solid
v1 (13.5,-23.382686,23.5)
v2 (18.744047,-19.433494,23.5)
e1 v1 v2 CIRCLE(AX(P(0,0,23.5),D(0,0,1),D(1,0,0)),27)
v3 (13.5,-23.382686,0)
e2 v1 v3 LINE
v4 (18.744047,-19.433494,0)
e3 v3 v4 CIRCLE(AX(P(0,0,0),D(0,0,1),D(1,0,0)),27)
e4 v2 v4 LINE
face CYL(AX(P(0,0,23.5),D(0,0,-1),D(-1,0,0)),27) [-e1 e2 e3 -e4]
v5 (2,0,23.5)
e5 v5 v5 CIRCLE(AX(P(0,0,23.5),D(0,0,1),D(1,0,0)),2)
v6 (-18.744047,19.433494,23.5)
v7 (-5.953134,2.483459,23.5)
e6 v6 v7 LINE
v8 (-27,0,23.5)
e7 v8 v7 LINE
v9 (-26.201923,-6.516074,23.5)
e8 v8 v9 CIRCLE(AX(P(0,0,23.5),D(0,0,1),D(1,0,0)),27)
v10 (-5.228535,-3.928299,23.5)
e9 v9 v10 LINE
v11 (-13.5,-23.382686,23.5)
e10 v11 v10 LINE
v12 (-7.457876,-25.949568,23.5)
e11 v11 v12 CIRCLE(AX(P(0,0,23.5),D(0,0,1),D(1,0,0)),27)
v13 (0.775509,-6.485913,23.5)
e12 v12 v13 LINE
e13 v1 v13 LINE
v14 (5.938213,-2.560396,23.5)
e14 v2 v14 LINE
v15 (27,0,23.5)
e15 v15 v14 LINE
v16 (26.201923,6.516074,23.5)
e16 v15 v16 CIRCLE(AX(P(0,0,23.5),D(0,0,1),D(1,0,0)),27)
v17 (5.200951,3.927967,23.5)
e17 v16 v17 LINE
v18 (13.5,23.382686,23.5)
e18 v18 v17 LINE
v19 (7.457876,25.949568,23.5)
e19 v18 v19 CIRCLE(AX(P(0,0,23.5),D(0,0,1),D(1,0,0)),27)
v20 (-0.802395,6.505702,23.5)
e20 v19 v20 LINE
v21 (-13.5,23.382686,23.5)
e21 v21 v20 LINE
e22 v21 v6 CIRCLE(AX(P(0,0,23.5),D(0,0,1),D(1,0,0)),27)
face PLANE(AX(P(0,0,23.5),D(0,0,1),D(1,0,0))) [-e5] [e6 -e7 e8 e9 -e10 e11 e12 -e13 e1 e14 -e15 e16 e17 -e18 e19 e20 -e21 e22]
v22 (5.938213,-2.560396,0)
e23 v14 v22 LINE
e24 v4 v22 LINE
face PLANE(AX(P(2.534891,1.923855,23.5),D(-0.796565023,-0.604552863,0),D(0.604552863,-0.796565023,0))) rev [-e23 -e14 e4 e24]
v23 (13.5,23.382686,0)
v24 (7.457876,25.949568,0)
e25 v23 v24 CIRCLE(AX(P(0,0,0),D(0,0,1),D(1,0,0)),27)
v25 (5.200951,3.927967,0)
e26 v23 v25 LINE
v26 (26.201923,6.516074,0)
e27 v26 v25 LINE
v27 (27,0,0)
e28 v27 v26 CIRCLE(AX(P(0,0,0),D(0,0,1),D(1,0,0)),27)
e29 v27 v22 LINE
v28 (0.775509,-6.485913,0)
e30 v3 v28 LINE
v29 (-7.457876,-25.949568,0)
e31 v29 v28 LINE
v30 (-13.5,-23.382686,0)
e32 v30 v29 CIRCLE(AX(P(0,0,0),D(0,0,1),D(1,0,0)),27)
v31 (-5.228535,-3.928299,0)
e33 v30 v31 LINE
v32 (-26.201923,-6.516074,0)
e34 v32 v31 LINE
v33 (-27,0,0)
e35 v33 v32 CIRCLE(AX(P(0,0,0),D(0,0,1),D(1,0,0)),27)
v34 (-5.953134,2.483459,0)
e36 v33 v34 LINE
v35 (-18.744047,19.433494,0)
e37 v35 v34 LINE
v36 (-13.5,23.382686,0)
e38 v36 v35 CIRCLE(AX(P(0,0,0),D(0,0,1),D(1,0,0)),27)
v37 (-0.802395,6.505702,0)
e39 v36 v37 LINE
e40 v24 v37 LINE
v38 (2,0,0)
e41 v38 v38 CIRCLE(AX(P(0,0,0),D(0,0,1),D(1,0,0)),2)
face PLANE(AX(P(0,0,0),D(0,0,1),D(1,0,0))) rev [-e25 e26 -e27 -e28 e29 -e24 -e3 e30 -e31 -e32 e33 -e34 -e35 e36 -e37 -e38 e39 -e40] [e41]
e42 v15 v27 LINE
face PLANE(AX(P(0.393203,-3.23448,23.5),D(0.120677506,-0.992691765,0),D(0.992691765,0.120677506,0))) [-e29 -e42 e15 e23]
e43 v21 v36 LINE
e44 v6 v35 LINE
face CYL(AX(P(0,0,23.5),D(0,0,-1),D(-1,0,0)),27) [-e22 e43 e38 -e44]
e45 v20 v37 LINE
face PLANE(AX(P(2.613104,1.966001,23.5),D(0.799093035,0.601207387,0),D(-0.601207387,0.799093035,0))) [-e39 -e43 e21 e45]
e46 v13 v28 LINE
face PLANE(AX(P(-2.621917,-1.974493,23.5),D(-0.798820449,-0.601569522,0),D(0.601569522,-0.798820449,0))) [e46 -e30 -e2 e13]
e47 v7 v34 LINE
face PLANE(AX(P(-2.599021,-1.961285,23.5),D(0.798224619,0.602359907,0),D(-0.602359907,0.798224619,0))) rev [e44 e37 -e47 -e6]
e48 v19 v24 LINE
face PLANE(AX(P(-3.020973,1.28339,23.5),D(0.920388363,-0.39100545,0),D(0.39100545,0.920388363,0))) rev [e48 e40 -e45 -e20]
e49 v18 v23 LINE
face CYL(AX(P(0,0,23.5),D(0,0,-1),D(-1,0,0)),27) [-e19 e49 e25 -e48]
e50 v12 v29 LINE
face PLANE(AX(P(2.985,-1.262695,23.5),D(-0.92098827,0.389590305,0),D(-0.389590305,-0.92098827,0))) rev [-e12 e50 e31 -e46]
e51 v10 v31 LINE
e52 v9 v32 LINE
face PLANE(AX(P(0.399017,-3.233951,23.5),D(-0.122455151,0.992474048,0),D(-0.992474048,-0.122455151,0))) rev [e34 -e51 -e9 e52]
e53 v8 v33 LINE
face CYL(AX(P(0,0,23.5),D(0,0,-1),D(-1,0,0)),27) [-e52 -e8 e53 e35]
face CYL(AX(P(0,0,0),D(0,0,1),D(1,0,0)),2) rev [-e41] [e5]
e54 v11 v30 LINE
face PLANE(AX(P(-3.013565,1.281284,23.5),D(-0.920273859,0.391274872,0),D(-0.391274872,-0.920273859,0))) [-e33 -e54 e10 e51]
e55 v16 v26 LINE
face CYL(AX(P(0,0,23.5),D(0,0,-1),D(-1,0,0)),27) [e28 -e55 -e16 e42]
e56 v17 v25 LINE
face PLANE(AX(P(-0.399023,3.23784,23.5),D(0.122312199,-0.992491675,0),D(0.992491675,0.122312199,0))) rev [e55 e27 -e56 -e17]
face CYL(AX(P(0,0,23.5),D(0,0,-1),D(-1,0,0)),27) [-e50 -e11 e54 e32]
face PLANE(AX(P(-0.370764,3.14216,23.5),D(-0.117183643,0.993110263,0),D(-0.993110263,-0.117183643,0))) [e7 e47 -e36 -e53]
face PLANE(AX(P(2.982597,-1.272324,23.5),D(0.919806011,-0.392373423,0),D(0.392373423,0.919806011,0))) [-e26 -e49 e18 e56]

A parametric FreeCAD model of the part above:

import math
import FreeCAD as App
import Part
import Sketcher

V = App.Vector

doc = App.newDocument("Part")
body = doc.addObject("PartDesign::Body", "Body")

sketch1 = doc.addObject("Sketcher::SketchObject", "Sketch")
body.addObject(sketch1)
sketch1.AttachmentSupport = (doc.XY_Plane, [""])
sketch1.MapMode = "FlatFace"
sketch1.addGeometry(Part.LineSegment(V(-19, 19, 0), V(-6, 2, 0)), False)
sketch1.addGeometry(Part.LineSegment(V(-6, 2, 0), V(-27, 0, 0)), False)
sketch1.addGeometry(Part.ArcOfCircle(Part.Circle(V(0, 0, 0), V(0, 0, 1), 27), math.radians(180), math.radians(193.97)), False)
sketch1.addGeometry(Part.LineSegment(V(-26, -7, 0), V(-5, -4, 0)), False)
sketch1.addGeometry(Part.LineSegment(V(-5, -4, 0), V(-14, -23, 0)), False)
sketch1.addGeometry(Part.ArcOfCircle(Part.Circle(V(0, 0, 0), V(0, 0, 1), 27), math.radians(-120), math.radians(-106.03)), False)
sketch1.addGeometry(Part.LineSegment(V(-7, -26, 0), V(1, -6, 0)), False)
sketch1.addGeometry(Part.LineSegment(V(1, -6, 0), V(14, -23, 0)), False)
sketch1.addGeometry(Part.ArcOfCircle(Part.Circle(V(0, 0, 0), V(0, 0, 1), 27), math.radians(-60), math.radians(-46.03)), False)
sketch1.addGeometry(Part.LineSegment(V(19, -19, 0), V(6, -3, 0)), False)
sketch1.addGeometry(Part.LineSegment(V(6, -3, 0), V(27, 0, 0)), False)
sketch1.addGeometry(Part.ArcOfCircle(Part.Circle(V(0, 0, 0), V(0, 0, 1), 27), math.radians(0), math.radians(13.97)), False)
sketch1.addGeometry(Part.LineSegment(V(26, 7, 0), V(5, 4, 0)), False)
sketch1.addGeometry(Part.LineSegment(V(5, 4, 0), V(14, 23, 0)), False)
sketch1.addGeometry(Part.ArcOfCircle(Part.Circle(V(0, 0, 0), V(0, 0, 1), 27), math.radians(60), math.radians(73.97)), False)
sketch1.addGeometry(Part.LineSegment(V(7, 26, 0), V(-1, 7, 0)), False)
sketch1.addGeometry(Part.LineSegment(V(-1, 7, 0), V(-14, 23, 0)), False)
sketch1.addGeometry(Part.ArcOfCircle(Part.Circle(V(0, 0, 0), V(0, 0, 1), 27), math.radians(120), math.radians(133.97)), False)
sketch1.addConstraint(Sketcher.Constraint("Coincident", 0, 2, 1, 1))
sketch1.addConstraint(Sketcher.Constraint("Coincident", 1, 2, 2, 1))
sketch1.addConstraint(Sketcher.Constraint("Coincident", 2, 2, 3, 1))
sketch1.addConstraint(Sketcher.Constraint("Coincident", 3, 2, 4, 1))
sketch1.addConstraint(Sketcher.Constraint("Coincident", 4, 2, 5, 1))
sketch1.addConstraint(Sketcher.Constraint("Coincident", 5, 2, 6, 1))
sketch1.addConstraint(Sketcher.Constraint("Coincident", 6, 2, 7, 1))
sketch1.addConstraint(Sketcher.Constraint("Coincident", 7, 2, 8, 1))
sketch1.addConstraint(Sketcher.Constraint("Coincident", 8, 2, 9, 1))
sketch1.addConstraint(Sketcher.Constraint("Coincident", 9, 2, 10, 1))
sketch1.addConstraint(Sketcher.Constraint("Coincident", 10, 2, 11, 1))
sketch1.addConstraint(Sketcher.Constraint("Coincident", 11, 2, 12, 1))
sketch1.addConstraint(Sketcher.Constraint("Coincident", 12, 2, 13, 1))
sketch1.addConstraint(Sketcher.Constraint("Coincident", 13, 2, 14, 1))
sketch1.addConstraint(Sketcher.Constraint("Coincident", 14, 2, 15, 1))
sketch1.addConstraint(Sketcher.Constraint("Coincident", 15, 2, 16, 1))
sketch1.addConstraint(Sketcher.Constraint("Coincident", 16, 2, 17, 1))
sketch1.addConstraint(Sketcher.Constraint("Coincident", 17, 2, 0, 1))
sketch1.addConstraint(Sketcher.Constraint("Coincident", 2, 3, -1, 1))
sketch1.addConstraint(Sketcher.Constraint("Coincident", 5, 3, -1, 1))
sketch1.addConstraint(Sketcher.Constraint("Coincident", 8, 3, -1, 1))
sketch1.addConstraint(Sketcher.Constraint("Coincident", 11, 3, -1, 1))
sketch1.addConstraint(Sketcher.Constraint("Coincident", 14, 3, -1, 1))
sketch1.addConstraint(Sketcher.Constraint("Coincident", 17, 3, -1, 1))
sketch1.addConstraint(Sketcher.Constraint("Equal", 2, 5))
sketch1.addConstraint(Sketcher.Constraint("Equal", 5, 8))
sketch1.addConstraint(Sketcher.Constraint("Equal", 8, 11))
sketch1.addConstraint(Sketcher.Constraint("Equal", 11, 14))
sketch1.addConstraint(Sketcher.Constraint("Equal", 14, 17))
sketch1.addConstraint(Sketcher.Constraint("PointOnObject", 1, 2, -1))
sketch1.addConstraint(Sketcher.Constraint("PointOnObject", 10, 2, -1))
sketch1.addConstraint(Sketcher.Constraint("Horizontal", 4, 2, 7, 2))
sketch1.addConstraint(Sketcher.Constraint("Horizontal", 13, 2, 16, 2))
sketch1.addConstraint(Sketcher.Constraint("Vertical", 7, 2, 13, 2))
sketch1.addConstraint(Sketcher.Constraint("Radius", 2, 27.0))
sketch1.addConstraint(Sketcher.Constraint("DistanceX", 4, 2, -1, 1, 13.5))
sketch1.addConstraint(Sketcher.Constraint("DistanceY", 3, 2, -1, 1, 3.928299))
sketch1.addConstraint(Sketcher.Constraint("DistanceX", 0, 2, 3, 2, 0.724599))
sketch1.addConstraint(Sketcher.Constraint("DistanceY", 12, 2, 14, 2, 22.021601))
sketch1.addConstraint(Sketcher.Constraint("Distance", 0, 21.234669))
sketch1.addConstraint(Sketcher.Constraint("Distance", 1, 21.192879))
sketch1.addConstraint(Sketcher.Constraint("Distance", 3, 21.132429))
sketch1.addConstraint(Sketcher.Constraint("Distance", 4, 21.13978))
sketch1.addConstraint(Sketcher.Constraint("Distance", 15, 21.125719))
sketch1.addConstraint(Sketcher.Constraint("DistanceY", 5, 2, -1, 1, 25.949568))
sketch1.addConstraint(Sketcher.Constraint("DistanceX", -1, 1, 6, 2, 0.775509))
sketch1.addConstraint(Sketcher.Constraint("DistanceX", -1, 1, 12, 2, 5.200951))
sketch1.addConstraint(Sketcher.Constraint("DistanceY", -1, 1, 14, 2, 25.949568))
sketch1.addConstraint(Sketcher.Constraint("DistanceY", 7, 2, 8, 2, 3.949192))
sketch1.addConstraint(Sketcher.Constraint("DistanceY", 8, 2, 6, 2, 12.947581))
sketch1.addConstraint(Sketcher.Constraint("DistanceX", 9, 2, 11, 2, 20.26371))
sketch1.addConstraint(Sketcher.Constraint("DistanceY", 9, 2, 11, 2, 9.07647))
sketch1.addConstraint(Sketcher.Constraint("DistanceY", 11, 2, 13, 2, 16.866612))
sketch1.addConstraint(Sketcher.Constraint("DistanceX", 0, 2, 15, 2, 5.150739))
pad1 = doc.addObject("PartDesign::Pad", "Pad")
body.addObject(pad1)
pad1.Profile = sketch1
pad1.Length = 23.5

sketch2 = doc.addObject("Sketcher::SketchObject", "Sketch001")
body.addObject(sketch2)
sketch2.AttachmentSupport = (doc.XY_Plane, [""])
sketch2.MapMode = "FlatFace"
sketch2.AttachmentOffset = App.Placement(V(0, 0, 23.5), App.Rotation())
sketch2.addGeometry(Part.Circle(V(0, 0, 0), V(0, 0, 1), 2), False)
sketch2.addConstraint(Sketcher.Constraint("Coincident", 0, 3, -1, 1))
sketch2.addConstraint(Sketcher.Constraint("Diameter", 0, 4.0))
pocket1 = doc.addObject("PartDesign::Pocket", "Pocket")
body.addObject(pocket1)
pocket1.Profile = sketch2
pocket1.Type = "ThroughAll"
pocket1.Midplane = True

doc.recompute()
